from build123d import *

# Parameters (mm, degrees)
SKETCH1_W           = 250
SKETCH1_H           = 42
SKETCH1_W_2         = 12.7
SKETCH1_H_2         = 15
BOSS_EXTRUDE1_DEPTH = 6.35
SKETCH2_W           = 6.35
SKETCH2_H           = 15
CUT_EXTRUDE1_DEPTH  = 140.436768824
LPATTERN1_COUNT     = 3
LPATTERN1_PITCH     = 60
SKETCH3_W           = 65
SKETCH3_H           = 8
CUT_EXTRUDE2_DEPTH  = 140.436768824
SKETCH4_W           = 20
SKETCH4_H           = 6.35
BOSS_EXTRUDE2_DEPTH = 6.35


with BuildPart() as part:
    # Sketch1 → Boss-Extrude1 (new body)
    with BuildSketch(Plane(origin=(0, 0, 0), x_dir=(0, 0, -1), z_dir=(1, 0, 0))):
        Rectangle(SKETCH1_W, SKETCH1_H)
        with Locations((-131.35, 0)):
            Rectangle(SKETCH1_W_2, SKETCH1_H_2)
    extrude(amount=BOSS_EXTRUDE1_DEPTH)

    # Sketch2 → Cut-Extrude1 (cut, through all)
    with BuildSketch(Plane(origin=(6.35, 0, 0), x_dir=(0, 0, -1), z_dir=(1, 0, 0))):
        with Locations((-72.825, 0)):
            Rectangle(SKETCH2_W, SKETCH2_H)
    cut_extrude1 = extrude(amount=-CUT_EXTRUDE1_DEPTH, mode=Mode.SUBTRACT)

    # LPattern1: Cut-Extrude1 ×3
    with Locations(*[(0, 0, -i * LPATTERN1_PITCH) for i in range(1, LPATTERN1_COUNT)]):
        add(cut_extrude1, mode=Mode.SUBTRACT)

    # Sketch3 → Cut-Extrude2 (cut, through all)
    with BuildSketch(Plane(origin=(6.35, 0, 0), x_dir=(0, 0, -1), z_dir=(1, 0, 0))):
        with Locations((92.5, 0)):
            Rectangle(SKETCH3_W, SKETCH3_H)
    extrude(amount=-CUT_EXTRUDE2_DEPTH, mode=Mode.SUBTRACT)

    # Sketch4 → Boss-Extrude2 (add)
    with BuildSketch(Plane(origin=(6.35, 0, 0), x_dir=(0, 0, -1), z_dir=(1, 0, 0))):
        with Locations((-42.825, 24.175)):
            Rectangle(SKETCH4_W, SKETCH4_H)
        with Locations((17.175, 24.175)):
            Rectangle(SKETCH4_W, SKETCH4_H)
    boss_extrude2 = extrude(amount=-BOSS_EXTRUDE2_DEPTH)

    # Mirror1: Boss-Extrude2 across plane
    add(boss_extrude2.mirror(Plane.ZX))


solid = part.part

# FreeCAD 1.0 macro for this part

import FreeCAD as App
import Part
import Sketcher
from FreeCAD import Vector


def add_polygon(sketch, points):
    """Adds a closed chain of lines whose ends are joined by coincident constraints."""
    first, n = sketch.GeometryCount, len(points)
    for a, b in zip(points, points[1:] + points[:1]):
        sketch.addGeometry(Part.LineSegment(App.Vector(*a, 0), App.Vector(*b, 0)), False)
    for i in range(n):
        sketch.addConstraint(Sketcher.Constraint("Coincident", first + i, 2, first + (i + 1) % n, 1))

doc = App.newDocument("Part")
body = doc.addObject("PartDesign::Body", "Body")

sketch1 = body.newObject("Sketcher::SketchObject", "Sketch")
sketch1.AttachmentSupport = (doc.getObject("YZ_Plane"), [""])
sketch1.MapMode = "FlatFace"
add_polygon(sketch1, [(-7.5, 125), (-21, 125), (-21, -125), (21, -125), (21, 125), (7.5, 125), (7.5, 137.7), (-7.5, 137.7)])
sketch1.addConstraint([
    Sketcher.Constraint("Horizontal", 0),
    Sketcher.Constraint("Vertical", 1),
    Sketcher.Constraint("Horizontal", 2),
    Sketcher.Constraint("Vertical", 3),
    Sketcher.Constraint("Horizontal", 4),
    Sketcher.Constraint("Vertical", 5),
    Sketcher.Constraint("Horizontal", 6),
    Sketcher.Constraint("Vertical", 7),
    Sketcher.Constraint("Symmetric", 0, 2, 2, 2, -1, 1),
    Sketcher.Constraint("Symmetric", 4, 2, 7, 2, -2),
    Sketcher.Constraint("DistanceX", 2, 1, 2, 2, 42.0),
    Sketcher.Constraint("DistanceX", 6, 2, 6, 1, 15.0),
    Sketcher.Constraint("DistanceY", 1, 2, 1, 1, 250.0),
    Sketcher.Constraint("DistanceY", 5, 1, 5, 2, 12.7),
])
pad1 = body.newObject("PartDesign::Pad", "Pad")
pad1.Profile = sketch1
pad1.Length = 6.35

sketch2 = body.newObject("Sketcher::SketchObject", "Sketch001")
sketch2.AttachmentSupport = (doc.getObject("YZ_Plane"), [""])
sketch2.MapMode = "FlatFace"
sketch2.AttachmentOffset = App.Placement(Vector(0, 0, 6.35), App.Rotation())
add_polygon(sketch2, [(7.5, 76), (-7.5, 76), (-7.5, 69.65), (7.5, 69.65)])
sketch2.addConstraint([
    Sketcher.Constraint("Horizontal", 0),
    Sketcher.Constraint("Vertical", 1),
    Sketcher.Constraint("Horizontal", 2),
    Sketcher.Constraint("Vertical", 3),
    Sketcher.Constraint("DistanceX", 0, 2, 0, 1, 15.0),
    Sketcher.Constraint("DistanceY", -1, 1, 0, 2, 76.0),
    Sketcher.Constraint("DistanceY", 1, 2, 1, 1, 6.35),
    Sketcher.Constraint("DistanceX", 0, 2, -1, 1, 7.5),
])
pocket1 = body.newObject("PartDesign::Pocket", "Pocket")
pocket1.Profile = sketch2
pocket1.Type = "ThroughAll"
doc.recompute()

linearpattern = body.newObject("PartDesign::LinearPattern", "LinearPattern")
linearpattern.Originals = [pocket1]
linearpattern.Direction = (doc.getObject("Z_Axis"), [""])
linearpattern.Mode = "offset"
linearpattern.Offset = 60
linearpattern.Occurrences = 3
linearpattern.Reversed = True
body.Tip = linearpattern

sketch3 = body.newObject("Sketcher::SketchObject", "Sketch002")
sketch3.AttachmentSupport = (doc.getObject("YZ_Plane"), [""])
sketch3.MapMode = "FlatFace"
sketch3.AttachmentOffset = App.Placement(Vector(0, 0, 6.35), App.Rotation())
add_polygon(sketch3, [(4, -60), (-4, -60), (-4, -125), (4, -125)])
sketch3.addConstraint([
    Sketcher.Constraint("Horizontal", 0),
    Sketcher.Constraint("Vertical", 1),
    Sketcher.Constraint("Horizontal", 2),
    Sketcher.Constraint("Vertical", 3),
    Sketcher.Constraint("DistanceX", 0, 2, 0, 1, 8.0),
    Sketcher.Constraint("DistanceY", 1, 2, 1, 1, 65.0),
    Sketcher.Constraint("DistanceX", 0, 2, -1, 1, 4.0),
    Sketcher.Constraint("DistanceY", 0, 2, -1, 1, 60.0),
])
pocket2 = body.newObject("PartDesign::Pocket", "Pocket001")
pocket2.Profile = sketch3
pocket2.Type = "ThroughAll"

sketch4 = body.newObject("Sketcher::SketchObject", "Sketch003")
sketch4.AttachmentSupport = (doc.getObject("YZ_Plane"), [""])
sketch4.MapMode = "FlatFace"
sketch4.AttachmentOffset = App.Placement(Vector(0, 0, 6.35), App.Rotation())
add_polygon(sketch4, [(27.35, 52.825), (21, 52.825), (21, 32.825), (27.35, 32.825)])
add_polygon(sketch4, [(27.35, -7.175), (21, -7.175), (21, -27.175), (27.35, -27.175)])
sketch4.addConstraint([
    Sketcher.Constraint("Horizontal", 0),
    Sketcher.Constraint("Vertical", 1),
    Sketcher.Constraint("Horizontal", 2),
    Sketcher.Constraint("Vertical", 3),
    Sketcher.Constraint("Horizontal", 4),
    Sketcher.Constraint("Vertical", 5),
    Sketcher.Constraint("Horizontal", 6),
    Sketcher.Constraint("Vertical", 7),
    Sketcher.Constraint("Vertical", 1, 2, 4, 2),
    Sketcher.Constraint("Vertical", 3, 2, 6, 2),
    Sketcher.Constraint("Equal", 3, 5),
    Sketcher.Constraint("DistanceY", 1, 2, 1, 1, 20.0),
    Sketcher.Constraint("DistanceX", -1, 1, 0, 2, 21.0),
    Sketcher.Constraint("DistanceY", 4, 2, 1, 2, 40.0),
    Sketcher.Constraint("DistanceX", 0, 2, 0, 1, 6.35),
    Sketcher.Constraint("DistanceY", -1, 1, 0, 2, 52.825),
])
pad2 = body.newObject("PartDesign::Pad", "Pad001")
pad2.Profile = sketch4
pad2.Length = 6.35
pad2.Reversed = True
doc.recompute()

mirrored = body.newObject("PartDesign::Mirrored", "Mirrored")
mirrored.Originals = [pad2]
mirrored.MirrorPlane = (doc.getObject("XZ_Plane"), [""])
body.Tip = mirrored

doc.recompute()
